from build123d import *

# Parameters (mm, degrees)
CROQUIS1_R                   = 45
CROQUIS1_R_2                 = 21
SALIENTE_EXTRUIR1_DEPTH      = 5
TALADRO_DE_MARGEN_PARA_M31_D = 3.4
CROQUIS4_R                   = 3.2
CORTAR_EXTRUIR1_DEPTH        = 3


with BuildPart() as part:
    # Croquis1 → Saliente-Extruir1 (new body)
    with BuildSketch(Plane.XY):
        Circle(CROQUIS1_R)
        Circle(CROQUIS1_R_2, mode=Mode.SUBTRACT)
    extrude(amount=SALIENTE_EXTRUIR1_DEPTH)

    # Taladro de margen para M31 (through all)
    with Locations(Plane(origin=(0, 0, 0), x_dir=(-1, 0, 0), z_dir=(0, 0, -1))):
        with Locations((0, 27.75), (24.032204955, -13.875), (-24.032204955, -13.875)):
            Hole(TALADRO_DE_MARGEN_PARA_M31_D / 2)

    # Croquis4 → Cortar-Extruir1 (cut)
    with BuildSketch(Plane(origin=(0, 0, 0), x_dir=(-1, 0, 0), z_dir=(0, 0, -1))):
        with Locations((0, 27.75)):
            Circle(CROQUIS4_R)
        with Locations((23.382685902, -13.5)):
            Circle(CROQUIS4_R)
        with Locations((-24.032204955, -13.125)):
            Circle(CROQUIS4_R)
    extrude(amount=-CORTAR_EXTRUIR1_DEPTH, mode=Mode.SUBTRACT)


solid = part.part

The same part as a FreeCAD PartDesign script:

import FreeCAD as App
import Part
import Sketcher
from FreeCAD import Vector
Q = App.Units.Quantity

doc = App.newDocument("Part")
body = doc.addObject("PartDesign::Body", "Body")

# Sketch on XY plane
sketch1 = body.newObject("Sketcher::SketchObject", "Sketch")
sketch1.AttachmentSupport = (doc.getObject("XY_Plane"), [""])
sketch1.MapMode = "FlatFace"
sketch1.addGeometry([
    Part.Circle(Vector(0, 0, 0), Vector(0, 0, 1), 45),
    Part.Circle(Vector(0, 0, 0), Vector(0, 0, 1), 21),
], False)
sketch1.addConstraint([
    Sketcher.Constraint("Coincident", 0, 3, -1, 1),
    Sketcher.Constraint("Coincident", 1, 3, -1, 1),
    Sketcher.Constraint("Diameter", 0, Q("90 mm")),
    Sketcher.Constraint("Diameter", 1, Q("42 mm")),
])
pad1 = body.newObject("PartDesign::Pad", "Pad")
pad1.Profile = sketch1
pad1.Length = 5

# Sketch on XY plane
sketch2 = body.newObject("Sketcher::SketchObject", "Sketch001")
sketch2.AttachmentSupport = (doc.getObject("XY_Plane"), [""])
sketch2.MapMode = "FlatFace"
sketch2.addGeometry([
    Part.Circle(Vector(0, 27.8, 0), Vector(0, 0, 1), 1.7),
    Part.Circle(Vector(-24, -13.9, 0), Vector(0, 0, 1), 1.7),
    Part.Circle(Vector(24, -13.9, 0), Vector(0, 0, 1), 1.7),
], False)
sketch2.addConstraint([
    Sketcher.Constraint("Equal", 0, 1),
    Sketcher.Constraint("Equal", 1, 2),
    Sketcher.Constraint("Symmetric", 1, 3, 2, 3, -2),
    Sketcher.Constraint("PointOnObject", 0, 3, -2),
    Sketcher.Constraint("Diameter", 0, Q("3.4 mm")),
    Sketcher.Constraint("DistanceY", -1, 1, 0, 3, Q("27.75 mm")),
    Sketcher.Constraint("DistanceY", 1, 3, -1, 1, Q("13.875 mm")),
    Sketcher.Constraint("DistanceX", 1, 3, 2, 3, Q("48.06441 mm")),
])
doc.recompute()
hole = body.newObject("PartDesign::Hole", "Hole")
hole.Profile = sketch2
hole.ThreadType = "None"
hole.Diameter = 3.4
hole.DepthType = "ThroughAll"
hole.Reversed = True

# Sketch on XY plane
sketch3 = body.newObject("Sketcher::SketchObject", "Sketch002")
sketch3.AttachmentSupport = (doc.getObject("XY_Plane"), [""])
sketch3.MapMode = "FlatFace"
sketch3.addGeometry([
    Part.Circle(Vector(0, 27.8, 0), Vector(0, 0, 1), 3.2),
    Part.Circle(Vector(-23.4, -13.5, 0), Vector(0, 0, 1), 3.2),
    Part.Circle(Vector(24, -13.1, 0), Vector(0, 0, 1), 3.2),
], False)
sketch3.addConstraint([
    Sketcher.Constraint("Equal", 0, 1),
    Sketcher.Constraint("Equal", 1, 2),
    Sketcher.Constraint("PointOnObject", 0, 3, -2),
    Sketcher.Constraint("Diameter", 0, Q("6.4 mm")),
    Sketcher.Constraint("DistanceY", 1, 3, -1, 1, Q("13.5 mm")),
    Sketcher.Constraint("DistanceY", -1, 1, 0, 3, Q("27.75 mm")),
    Sketcher.Constraint("DistanceY", 2, 3, -1, 1, Q("13.125 mm")),
    Sketcher.Constraint("DistanceX", 1, 3, 2, 3, Q("47.414891 mm")),
    Sketcher.Constraint("DistanceX", 1, 3, -1, 1, Q("23.382686 mm")),
])
pocket1 = body.newObject("PartDesign::Pocket", "Pocket")
pocket1.Profile = sketch3
pocket1.Length = 3
pocket1.Reversed = True

doc.recompute()
